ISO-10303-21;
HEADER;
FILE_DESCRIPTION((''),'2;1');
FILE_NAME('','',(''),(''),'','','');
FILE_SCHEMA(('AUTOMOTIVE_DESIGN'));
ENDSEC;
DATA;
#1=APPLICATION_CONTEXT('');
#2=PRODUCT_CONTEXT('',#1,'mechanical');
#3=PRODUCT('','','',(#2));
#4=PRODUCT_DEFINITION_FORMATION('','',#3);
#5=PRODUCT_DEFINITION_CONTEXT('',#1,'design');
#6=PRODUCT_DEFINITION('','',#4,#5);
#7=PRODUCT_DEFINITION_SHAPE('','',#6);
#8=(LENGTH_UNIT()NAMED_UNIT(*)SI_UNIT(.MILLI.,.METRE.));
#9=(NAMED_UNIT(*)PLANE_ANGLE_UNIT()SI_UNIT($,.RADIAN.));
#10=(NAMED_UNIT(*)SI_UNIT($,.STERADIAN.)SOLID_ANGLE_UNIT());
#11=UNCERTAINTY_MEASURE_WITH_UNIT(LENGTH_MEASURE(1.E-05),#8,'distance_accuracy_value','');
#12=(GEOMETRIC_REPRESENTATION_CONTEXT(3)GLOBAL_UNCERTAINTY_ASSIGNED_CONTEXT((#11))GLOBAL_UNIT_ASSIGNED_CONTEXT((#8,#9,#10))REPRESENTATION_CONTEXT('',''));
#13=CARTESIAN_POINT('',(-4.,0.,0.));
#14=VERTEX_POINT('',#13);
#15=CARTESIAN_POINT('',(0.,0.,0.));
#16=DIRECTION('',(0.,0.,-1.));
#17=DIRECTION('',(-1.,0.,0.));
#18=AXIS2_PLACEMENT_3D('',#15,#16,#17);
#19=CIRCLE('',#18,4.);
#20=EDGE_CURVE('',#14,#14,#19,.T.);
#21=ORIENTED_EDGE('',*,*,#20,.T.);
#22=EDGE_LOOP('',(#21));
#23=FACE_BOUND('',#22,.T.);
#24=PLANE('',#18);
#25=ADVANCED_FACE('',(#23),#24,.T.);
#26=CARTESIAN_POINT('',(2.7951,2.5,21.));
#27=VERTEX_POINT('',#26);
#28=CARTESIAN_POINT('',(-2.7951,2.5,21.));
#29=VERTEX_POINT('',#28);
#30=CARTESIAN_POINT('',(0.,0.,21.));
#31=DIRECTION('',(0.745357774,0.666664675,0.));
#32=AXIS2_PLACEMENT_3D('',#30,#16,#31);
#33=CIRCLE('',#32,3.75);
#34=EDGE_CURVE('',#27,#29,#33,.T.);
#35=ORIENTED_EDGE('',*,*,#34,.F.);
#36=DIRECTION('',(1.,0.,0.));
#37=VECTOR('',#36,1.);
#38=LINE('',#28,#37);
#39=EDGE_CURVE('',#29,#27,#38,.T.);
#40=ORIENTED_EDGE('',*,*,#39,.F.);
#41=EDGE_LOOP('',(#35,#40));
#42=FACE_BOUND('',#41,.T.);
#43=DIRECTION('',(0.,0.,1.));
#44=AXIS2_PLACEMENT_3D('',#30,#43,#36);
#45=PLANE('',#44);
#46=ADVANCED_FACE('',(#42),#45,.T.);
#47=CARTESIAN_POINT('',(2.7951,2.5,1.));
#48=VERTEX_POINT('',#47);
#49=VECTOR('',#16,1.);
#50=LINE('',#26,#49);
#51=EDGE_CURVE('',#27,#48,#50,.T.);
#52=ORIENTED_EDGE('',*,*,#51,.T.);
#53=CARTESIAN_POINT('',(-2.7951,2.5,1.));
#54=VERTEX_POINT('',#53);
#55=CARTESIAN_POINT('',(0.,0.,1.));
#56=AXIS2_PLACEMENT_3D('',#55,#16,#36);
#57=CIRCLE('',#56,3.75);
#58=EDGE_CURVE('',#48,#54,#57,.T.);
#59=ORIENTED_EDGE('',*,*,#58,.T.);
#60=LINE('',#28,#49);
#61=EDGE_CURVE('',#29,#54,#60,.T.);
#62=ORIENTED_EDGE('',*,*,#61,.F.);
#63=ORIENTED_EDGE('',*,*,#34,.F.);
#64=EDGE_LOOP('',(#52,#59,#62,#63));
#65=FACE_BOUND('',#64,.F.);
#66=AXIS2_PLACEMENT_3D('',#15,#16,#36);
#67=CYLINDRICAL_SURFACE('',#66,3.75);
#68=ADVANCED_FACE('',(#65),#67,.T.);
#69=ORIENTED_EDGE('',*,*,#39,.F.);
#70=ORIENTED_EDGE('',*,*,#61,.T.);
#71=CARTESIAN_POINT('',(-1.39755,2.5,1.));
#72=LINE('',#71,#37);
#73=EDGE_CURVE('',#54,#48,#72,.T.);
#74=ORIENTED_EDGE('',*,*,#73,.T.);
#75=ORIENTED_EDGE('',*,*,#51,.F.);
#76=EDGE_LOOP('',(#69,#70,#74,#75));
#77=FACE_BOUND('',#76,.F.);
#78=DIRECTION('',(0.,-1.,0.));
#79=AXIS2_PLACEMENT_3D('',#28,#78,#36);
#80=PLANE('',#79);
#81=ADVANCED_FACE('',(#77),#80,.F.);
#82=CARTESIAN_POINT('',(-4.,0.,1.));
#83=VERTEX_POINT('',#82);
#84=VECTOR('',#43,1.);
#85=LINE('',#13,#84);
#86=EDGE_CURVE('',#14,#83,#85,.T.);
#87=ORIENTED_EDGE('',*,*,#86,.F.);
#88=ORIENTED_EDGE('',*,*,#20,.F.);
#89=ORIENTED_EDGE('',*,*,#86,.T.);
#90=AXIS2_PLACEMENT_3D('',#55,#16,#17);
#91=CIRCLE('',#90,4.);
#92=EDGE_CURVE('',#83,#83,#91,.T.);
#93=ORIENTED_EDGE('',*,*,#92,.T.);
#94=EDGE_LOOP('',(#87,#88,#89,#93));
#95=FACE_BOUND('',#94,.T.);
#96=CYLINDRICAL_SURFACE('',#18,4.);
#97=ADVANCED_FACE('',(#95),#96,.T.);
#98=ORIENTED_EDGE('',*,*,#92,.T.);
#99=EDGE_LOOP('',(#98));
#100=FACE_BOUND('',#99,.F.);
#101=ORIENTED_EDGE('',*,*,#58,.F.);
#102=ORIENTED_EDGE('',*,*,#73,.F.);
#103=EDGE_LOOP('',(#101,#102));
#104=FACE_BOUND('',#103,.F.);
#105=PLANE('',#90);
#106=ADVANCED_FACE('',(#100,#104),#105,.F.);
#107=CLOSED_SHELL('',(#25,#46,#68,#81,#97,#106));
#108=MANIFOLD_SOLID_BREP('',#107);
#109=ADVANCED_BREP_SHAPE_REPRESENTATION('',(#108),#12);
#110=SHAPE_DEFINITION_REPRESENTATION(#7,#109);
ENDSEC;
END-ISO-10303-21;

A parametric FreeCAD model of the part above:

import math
import FreeCAD as App
import Part
import Sketcher
from FreeCAD import Vector
Q = App.Units.Quantity

doc = App.newDocument("Part")
body = doc.addObject("PartDesign::Body", "Body")

# Sketch on XY plane
sketch1 = body.newObject("Sketcher::SketchObject", "Sketch")
sketch1.AttachmentSupport = (doc.getObject("XY_Plane"), [""])
sketch1.MapMode = "FlatFace"
sketch1.addGeometry(Part.Circle(Vector(0, 0, 0), Vector(0, 0, 1), 3.8), False)
sketch1.addConstraint(Sketcher.Constraint("Coincident", 0, 3, -1, 1))
sketch1.addConstraint(Sketcher.Constraint("Diameter", 0, Q("7.5 mm")))
pad1 = body.newObject("PartDesign::Pad", "Pad")
pad1.Profile = sketch1
pad1.Length = 21

# Sketch on XY plane
sketch2 = body.newObject("Sketcher::SketchObject", "Sketch001")
sketch2.AttachmentSupport = (doc.getObject("XY_Plane"), [""])
sketch2.MapMode = "FlatFace"
sketch2.AttachmentOffset = App.Placement(Vector(0, 0, 21), App.Rotation())
sketch2.addGeometry(Part.LineSegment(Vector(-2.8, 2.5, 0), Vector(2.8, 2.5, 0)), False)
sketch2.addGeometry(Part.ArcOfCircle(Part.Circle(Vector(0, 0, 0), Vector(0, 0, 1), 3.8), math.radians(42), math.radians(138)), False)
sketch2.addConstraint(Sketcher.Constraint("Coincident", 0, 1, 1, 2))
sketch2.addConstraint(Sketcher.Constraint("Coincident", 1, 1, 0, 2))
sketch2.addConstraint(Sketcher.Constraint("Horizontal", 0))
sketch2.addConstraint(Sketcher.Constraint("Coincident", 1, 3, -1, 1))
sketch2.addConstraint(Sketcher.Constraint("DistanceY", -1, 1, 0, 1, Q("2.5 mm")))
sketch2.addConstraint(Sketcher.Constraint("Radius", 1, Q("3.75 mm")))
pocket1 = body.newObject("PartDesign::Pocket", "Pocket")
pocket1.Profile = sketch2
pocket1.Type = "ThroughAll"

# Sketch on XY plane
sketch3 = body.newObject("Sketcher::SketchObject", "Sketch002")
sketch3.AttachmentSupport = (doc.getObject("XY_Plane"), [""])
sketch3.MapMode = "FlatFace"
sketch3.addGeometry(Part.Circle(Vector(0, 0, 0), Vector(0, 0, 1), 4), False)
sketch3.addConstraint(Sketcher.Constraint("Coincident", 0, 3, -1, 1))
sketch3.addConstraint(Sketcher.Constraint("Diameter", 0, Q("8 mm")))
pad2 = body.newObject("PartDesign::Pad", "Pad001")
pad2.Profile = sketch3
pad2.Length = 1

doc.recompute()
